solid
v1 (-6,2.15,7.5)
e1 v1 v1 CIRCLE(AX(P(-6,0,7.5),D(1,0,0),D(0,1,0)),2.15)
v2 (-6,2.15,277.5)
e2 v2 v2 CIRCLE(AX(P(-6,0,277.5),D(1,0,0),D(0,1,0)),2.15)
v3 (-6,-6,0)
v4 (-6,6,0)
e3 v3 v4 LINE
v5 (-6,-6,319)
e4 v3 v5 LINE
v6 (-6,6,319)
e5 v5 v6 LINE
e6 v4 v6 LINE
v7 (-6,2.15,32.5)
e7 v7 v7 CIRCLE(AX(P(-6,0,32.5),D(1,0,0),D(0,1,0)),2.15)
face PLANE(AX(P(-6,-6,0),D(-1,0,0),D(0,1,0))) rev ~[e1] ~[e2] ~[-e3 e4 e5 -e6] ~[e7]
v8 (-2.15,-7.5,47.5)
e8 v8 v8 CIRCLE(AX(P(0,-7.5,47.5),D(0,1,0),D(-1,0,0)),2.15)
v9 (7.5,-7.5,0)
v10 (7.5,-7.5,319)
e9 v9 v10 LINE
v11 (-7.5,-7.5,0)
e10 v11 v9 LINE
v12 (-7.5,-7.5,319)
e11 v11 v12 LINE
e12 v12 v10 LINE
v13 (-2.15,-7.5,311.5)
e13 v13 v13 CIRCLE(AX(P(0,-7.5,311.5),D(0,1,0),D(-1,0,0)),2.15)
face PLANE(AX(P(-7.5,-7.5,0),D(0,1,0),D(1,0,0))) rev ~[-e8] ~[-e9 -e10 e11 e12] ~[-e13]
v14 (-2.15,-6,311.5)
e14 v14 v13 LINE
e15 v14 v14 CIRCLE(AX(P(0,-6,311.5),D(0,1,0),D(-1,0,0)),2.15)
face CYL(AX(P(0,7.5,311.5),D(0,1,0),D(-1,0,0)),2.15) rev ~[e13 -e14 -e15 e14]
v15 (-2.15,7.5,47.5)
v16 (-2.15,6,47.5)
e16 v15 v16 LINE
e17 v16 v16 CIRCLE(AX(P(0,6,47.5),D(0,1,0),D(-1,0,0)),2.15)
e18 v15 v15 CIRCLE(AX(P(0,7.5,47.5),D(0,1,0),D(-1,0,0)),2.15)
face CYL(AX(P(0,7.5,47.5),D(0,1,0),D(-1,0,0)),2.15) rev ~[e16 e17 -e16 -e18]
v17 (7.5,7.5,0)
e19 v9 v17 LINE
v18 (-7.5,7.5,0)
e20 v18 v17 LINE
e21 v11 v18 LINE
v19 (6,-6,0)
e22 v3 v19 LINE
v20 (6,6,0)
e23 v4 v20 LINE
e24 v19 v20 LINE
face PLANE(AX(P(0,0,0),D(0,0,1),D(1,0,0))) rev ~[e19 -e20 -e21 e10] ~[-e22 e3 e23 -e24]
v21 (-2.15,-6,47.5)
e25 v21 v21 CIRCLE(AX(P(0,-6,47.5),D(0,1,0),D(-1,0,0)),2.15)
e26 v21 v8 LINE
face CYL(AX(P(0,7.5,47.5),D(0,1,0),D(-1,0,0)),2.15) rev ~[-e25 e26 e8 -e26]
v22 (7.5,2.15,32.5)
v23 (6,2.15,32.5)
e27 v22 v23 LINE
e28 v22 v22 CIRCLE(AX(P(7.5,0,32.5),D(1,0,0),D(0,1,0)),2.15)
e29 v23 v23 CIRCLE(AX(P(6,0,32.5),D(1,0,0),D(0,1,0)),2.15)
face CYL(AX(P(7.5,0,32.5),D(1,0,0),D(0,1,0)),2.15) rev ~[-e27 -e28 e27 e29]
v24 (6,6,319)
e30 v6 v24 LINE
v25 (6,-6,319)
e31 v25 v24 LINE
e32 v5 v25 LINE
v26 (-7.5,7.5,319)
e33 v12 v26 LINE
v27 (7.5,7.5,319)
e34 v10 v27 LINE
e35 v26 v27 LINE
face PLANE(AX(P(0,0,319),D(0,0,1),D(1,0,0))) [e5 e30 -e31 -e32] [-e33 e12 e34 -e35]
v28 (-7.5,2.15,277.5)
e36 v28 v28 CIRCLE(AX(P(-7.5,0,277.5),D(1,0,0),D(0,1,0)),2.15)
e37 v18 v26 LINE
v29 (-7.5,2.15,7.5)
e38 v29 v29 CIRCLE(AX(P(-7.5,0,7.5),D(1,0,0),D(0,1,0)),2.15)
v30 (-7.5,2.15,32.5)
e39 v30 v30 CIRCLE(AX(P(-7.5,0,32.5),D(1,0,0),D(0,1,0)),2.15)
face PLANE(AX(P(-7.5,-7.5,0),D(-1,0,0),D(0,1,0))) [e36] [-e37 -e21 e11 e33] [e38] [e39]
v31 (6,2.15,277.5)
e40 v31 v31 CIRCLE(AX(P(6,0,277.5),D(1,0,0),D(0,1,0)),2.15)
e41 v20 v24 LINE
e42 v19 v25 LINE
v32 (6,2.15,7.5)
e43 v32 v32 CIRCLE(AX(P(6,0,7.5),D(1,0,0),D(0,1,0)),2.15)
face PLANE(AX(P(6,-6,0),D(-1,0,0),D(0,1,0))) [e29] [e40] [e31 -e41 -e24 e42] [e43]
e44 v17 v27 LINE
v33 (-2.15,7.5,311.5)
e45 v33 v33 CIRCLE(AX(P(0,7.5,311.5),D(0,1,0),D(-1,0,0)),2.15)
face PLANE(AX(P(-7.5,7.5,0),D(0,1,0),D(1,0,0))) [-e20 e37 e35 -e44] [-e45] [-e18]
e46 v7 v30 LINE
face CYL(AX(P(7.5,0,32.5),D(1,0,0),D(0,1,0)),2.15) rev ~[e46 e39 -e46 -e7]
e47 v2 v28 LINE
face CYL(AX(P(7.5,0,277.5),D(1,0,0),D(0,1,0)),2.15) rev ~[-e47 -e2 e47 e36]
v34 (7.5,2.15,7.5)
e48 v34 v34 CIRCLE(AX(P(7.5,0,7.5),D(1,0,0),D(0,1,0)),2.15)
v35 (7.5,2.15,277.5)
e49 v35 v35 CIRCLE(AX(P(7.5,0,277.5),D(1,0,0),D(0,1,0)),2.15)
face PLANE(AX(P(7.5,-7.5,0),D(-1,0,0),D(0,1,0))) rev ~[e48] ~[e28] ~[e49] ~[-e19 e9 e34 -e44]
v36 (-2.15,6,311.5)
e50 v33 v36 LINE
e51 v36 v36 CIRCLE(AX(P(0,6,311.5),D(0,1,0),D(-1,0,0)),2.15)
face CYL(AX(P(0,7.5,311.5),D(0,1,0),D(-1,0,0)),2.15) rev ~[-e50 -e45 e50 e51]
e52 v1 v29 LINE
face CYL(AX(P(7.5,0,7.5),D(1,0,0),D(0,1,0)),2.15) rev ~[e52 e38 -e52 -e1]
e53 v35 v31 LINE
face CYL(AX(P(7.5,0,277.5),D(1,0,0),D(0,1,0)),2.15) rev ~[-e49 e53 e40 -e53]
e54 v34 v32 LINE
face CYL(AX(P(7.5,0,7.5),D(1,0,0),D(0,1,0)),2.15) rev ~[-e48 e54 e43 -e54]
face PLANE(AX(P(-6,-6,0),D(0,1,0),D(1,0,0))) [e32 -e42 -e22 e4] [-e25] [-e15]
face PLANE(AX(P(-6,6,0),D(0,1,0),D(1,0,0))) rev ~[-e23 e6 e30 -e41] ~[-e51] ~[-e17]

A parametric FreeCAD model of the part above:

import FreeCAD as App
import Part
import Sketcher
from FreeCAD import Vector
Q = App.Units.Quantity


def add_polygon(sketch, points):
    """Adds a closed chain of lines whose ends are joined by coincident constraints."""
    first, n = sketch.GeometryCount, len(points)
    for a, b in zip(points, points[1:] + points[:1]):
        sketch.addGeometry(Part.LineSegment(App.Vector(*a, 0), App.Vector(*b, 0)), False)
    for i in range(n):
        sketch.addConstraint(Sketcher.Constraint("Coincident", first + i, 2, first + (i + 1) % n, 1))

doc = App.newDocument("Part")
params = doc.addObject("Spreadsheet::Sheet", "Params")
for row, (alias, value) in enumerate([
    ("sketch1_width", "15 mm"),
    ("sketch1_width2", "12 mm"),
    ("pad1_length", "319 mm"),
    ("sketch2_diameter", "4.3 mm"),
    ("sketch3_diameter", "4.3 mm"),
], start=1):
    params.set(f"A{row}", alias)
    params.set(f"B{row}", "=" + value)
    params.setAlias(f"B{row}", alias)

body = doc.addObject("PartDesign::Body", "Body")

# Sketch on XY plane
sketch1 = doc.addObject("Sketcher::SketchObject", "Sketch")
body.addObject(sketch1)
sketch1.AttachmentSupport = (doc.XY_Plane, [""])
sketch1.MapMode = "FlatFace"
add_polygon(sketch1, [(-8, 8), (-8, -8), (8, -8), (8, 8)])  # lines 0-3
add_polygon(sketch1, [(6, -6), (-6, -6), (-6, 6), (6, 6)])  # lines 4-7
sketch1.addConstraint(Sketcher.Constraint("Vertical", 0))
sketch1.addConstraint(Sketcher.Constraint("Horizontal", 1))
sketch1.addConstraint(Sketcher.Constraint("Vertical", 2))
sketch1.addConstraint(Sketcher.Constraint("Horizontal", 3))
sketch1.addConstraint(Sketcher.Constraint("Horizontal", 4))
sketch1.addConstraint(Sketcher.Constraint("Vertical", 5))
sketch1.addConstraint(Sketcher.Constraint("Horizontal", 6))
sketch1.addConstraint(Sketcher.Constraint("Vertical", 7))
sketch1.addConstraint(Sketcher.Constraint("Symmetric", 0, 2, 2, 2, -1, 1))
sketch1.addConstraint(Sketcher.Constraint("Symmetric", 4, 2, 6, 2, -1, 1))
sketch1.addConstraint(Sketcher.Constraint("Equal", 3, 0))
sketch1.addConstraint(Sketcher.Constraint("Equal", 6, 5))
sketch1.addConstraint(Sketcher.Constraint("DistanceX", 1, 1, 1, 2, Q("15 mm")))
sketch1.addConstraint(Sketcher.Constraint("DistanceX", 4, 2, 4, 1, Q("12 mm")))
sketch1.setExpression("Constraints[20]", "Params.sketch1_width")
sketch1.setExpression("Constraints[21]", "Params.sketch1_width2")
pad1 = doc.addObject("PartDesign::Pad", "Pad")
body.addObject(pad1)
pad1.Profile = sketch1
pad1.setExpression("Length", "Params.pad1_length")

# Sketch on XZ plane
sketch2 = doc.addObject("Sketcher::SketchObject", "Sketch001")
body.addObject(sketch2)
sketch2.AttachmentSupport = (doc.XZ_Plane, [""])
sketch2.MapMode = "FlatFace"
sketch2.AttachmentOffset = App.Placement(Vector(0, 0, -7.5), App.Rotation())
sketch2.addGeometry(Part.Circle(Vector(0, 47.5, 0), Vector(0, 0, 1), 2.1), False)
sketch2.addGeometry(Part.Circle(Vector(0, 311.5, 0), Vector(0, 0, 1), 2.1), False)
sketch2.addConstraint(Sketcher.Constraint("Equal", 0, 1))
sketch2.addConstraint(Sketcher.Constraint("PointOnObject", 0, 3, -2))
sketch2.addConstraint(Sketcher.Constraint("PointOnObject", 1, 3, -2))
sketch2.addConstraint(Sketcher.Constraint("Diameter", 0, Q("4.3 mm")))
sketch2.addConstraint(Sketcher.Constraint("DistanceY", 0, 3, 1, 3, Q("264 mm")))
sketch2.addConstraint(Sketcher.Constraint("DistanceY", -1, 1, 0, 3, Q("47.5 mm")))
sketch2.setExpression("Constraints[3]", "Params.sketch2_diameter")
pocket1 = doc.addObject("PartDesign::Pocket", "Pocket")
body.addObject(pocket1)
pocket1.Profile = sketch2
pocket1.Type = "ThroughAll"
pocket1.Reversed = True

# Sketch on YZ plane
sketch3 = doc.addObject("Sketcher::SketchObject", "Sketch002")
body.addObject(sketch3)
sketch3.AttachmentSupport = (doc.YZ_Plane, [""])
sketch3.MapMode = "FlatFace"
sketch3.AttachmentOffset = App.Placement(Vector(0, 0, 7.5), App.Rotation())
sketch3.addGeometry(Part.Circle(Vector(0, 32.5, 0), Vector(0, 0, 1), 2.1), False)
sketch3.addGeometry(Part.Circle(Vector(0, 7.5, 0), Vector(0, 0, 1), 2.1), False)
sketch3.addGeometry(Part.Circle(Vector(0, 277.5, 0), Vector(0, 0, 1), 2.1), False)
sketch3.addConstraint(Sketcher.Constraint("Equal", 0, 1))
sketch3.addConstraint(Sketcher.Constraint("Equal", 1, 2))
sketch3.addConstraint(Sketcher.Constraint("PointOnObject", 0, 3, -2))
sketch3.addConstraint(Sketcher.Constraint("PointOnObject", 1, 3, -2))
sketch3.addConstraint(Sketcher.Constraint("PointOnObject", 2, 3, -2))
sketch3.addConstraint(Sketcher.Constraint("Diameter", 0, Q("4.3 mm")))
sketch3.addConstraint(Sketcher.Constraint("DistanceY", 1, 3, 0, 3, Q("25 mm")))
sketch3.addConstraint(Sketcher.Constraint("DistanceY", 0, 3, 2, 3, Q("245 mm")))
sketch3.addConstraint(Sketcher.Constraint("DistanceY", -1, 1, 0, 3, Q("32.5 mm")))
sketch3.setExpression("Constraints[5]", "Params.sketch3_diameter")
pocket2 = doc.addObject("PartDesign::Pocket", "Pocket001")
body.addObject(pocket2)
pocket2.Profile = sketch3
pocket2.Type = "ThroughAll"

doc.recompute()
